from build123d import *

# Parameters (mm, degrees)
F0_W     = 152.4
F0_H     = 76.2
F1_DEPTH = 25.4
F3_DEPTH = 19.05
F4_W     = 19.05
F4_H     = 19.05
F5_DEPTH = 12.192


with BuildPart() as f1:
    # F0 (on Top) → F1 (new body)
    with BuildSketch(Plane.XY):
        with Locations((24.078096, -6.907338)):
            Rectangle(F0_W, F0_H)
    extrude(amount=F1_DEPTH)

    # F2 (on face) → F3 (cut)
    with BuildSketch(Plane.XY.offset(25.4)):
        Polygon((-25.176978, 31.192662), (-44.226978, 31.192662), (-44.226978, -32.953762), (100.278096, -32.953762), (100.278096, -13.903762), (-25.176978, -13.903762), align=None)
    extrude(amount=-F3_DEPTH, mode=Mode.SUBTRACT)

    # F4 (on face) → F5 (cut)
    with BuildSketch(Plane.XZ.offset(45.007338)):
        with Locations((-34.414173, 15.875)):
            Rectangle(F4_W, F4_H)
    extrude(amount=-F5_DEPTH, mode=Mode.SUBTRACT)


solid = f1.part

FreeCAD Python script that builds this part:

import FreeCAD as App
import Part
import Sketcher
from FreeCAD import Vector
Q = App.Units.Quantity


def add_polygon(sketch, points):
    """Adds a closed chain of lines whose ends are joined by coincident constraints."""
    first, n = sketch.GeometryCount, len(points)
    for a, b in zip(points, points[1:] + points[:1]):
        sketch.addGeometry(Part.LineSegment(App.Vector(*a, 0), App.Vector(*b, 0)), False)
    for i in range(n):
        sketch.addConstraint(Sketcher.Constraint("Coincident", first + i, 2, first + (i + 1) % n, 1))

doc = App.newDocument("Part")
body = doc.addObject("PartDesign::Body", "Body")

sketch1 = doc.addObject("Sketcher::SketchObject", "Sketch")
body.addObject(sketch1)
sketch1.AttachmentSupport = (doc.XY_Plane, [""])
sketch1.MapMode = "FlatFace"
add_polygon(sketch1, [(-52, 31), (-52, -45), (100, -45), (100, 31)])
sketch1.addConstraint([
    Sketcher.Constraint("Vertical", 0),
    Sketcher.Constraint("Horizontal", 1),
    Sketcher.Constraint("Vertical", 2),
    Sketcher.Constraint("Horizontal", 3),
    Sketcher.Constraint("DistanceX", 1, 1, 1, 2, Q("6 in")),
    Sketcher.Constraint("DistanceY", 0, 2, 0, 1, Q("3 in")),
    Sketcher.Constraint("DistanceY", -1, 1, 2, 2, Q("31.192662 mm")),
    Sketcher.Constraint("DistanceX", 0, 2, -1, 1, Q("52.121904 mm")),
])
pad1 = doc.addObject("PartDesign::Pad", "Pad")
body.addObject(pad1)
pad1.Profile = sketch1
pad1.Length = Q("1 in")

sketch2 = doc.addObject("Sketcher::SketchObject", "Sketch001")
body.addObject(sketch2)
sketch2.AttachmentSupport = (doc.XY_Plane, [""])
sketch2.MapMode = "FlatFace"
sketch2.AttachmentOffset = App.Placement(Vector(0, 0, 1 * 25.4), App.Rotation())
add_polygon(sketch2, [(-25, 31), (-44, 31), (-44, -33), (100, -33), (100, -14), (-25, -14)])
sketch2.addConstraint([
    Sketcher.Constraint("Horizontal", 0),
    Sketcher.Constraint("Vertical", 1),
    Sketcher.Constraint("Horizontal", 2),
    Sketcher.Constraint("Vertical", 3),
    Sketcher.Constraint("Horizontal", 4),
    Sketcher.Constraint("Vertical", 5),
    Sketcher.Constraint("Equal", 0, 3),
    Sketcher.Constraint("DistanceX", 0, 2, 0, 1, Q("0.75 in")),
    Sketcher.Constraint("DistanceX", 2, 1, 2, 2, Q("144.505074 mm")),
    Sketcher.Constraint("DistanceY", 1, 2, 1, 1, Q("64.146424 mm")),
    Sketcher.Constraint("DistanceX", 0, 2, -1, 1, Q("44.226978 mm")),
    Sketcher.Constraint("DistanceY", -1, 1, 0, 2, Q("31.192662 mm")),
])
pocket1 = doc.addObject("PartDesign::Pocket", "Pocket")
body.addObject(pocket1)
pocket1.Profile = sketch2
pocket1.Length = Q("0.75 in")

sketch3 = doc.addObject("Sketcher::SketchObject", "Sketch002")
body.addObject(sketch3)
sketch3.AttachmentSupport = (doc.XZ_Plane, [""])
sketch3.MapMode = "FlatFace"
sketch3.AttachmentOffset = App.Placement(Vector(0, 0, 45.007338), App.Rotation())
add_polygon(sketch3, [(-44, 25), (-44, 6), (-25, 6), (-25, 25)])
sketch3.addConstraint([
    Sketcher.Constraint("Vertical", 0),
    Sketcher.Constraint("Horizontal", 1),
    Sketcher.Constraint("Vertical", 2),
    Sketcher.Constraint("Horizontal", 3),
    Sketcher.Constraint("Equal", 3, 0),
    Sketcher.Constraint("DistanceY", -1, 1, 2, 2, Q("1 in")),
    Sketcher.Constraint("DistanceX", 1, 1, 1, 2, Q("0.75 in")),
    Sketcher.Constraint("DistanceX", 0, 2, -1, 1, Q("43.939173 mm")),
])
pocket2 = doc.addObject("PartDesign::Pocket", "Pocket001")
body.addObject(pocket2)
pocket2.Profile = sketch3
pocket2.Length = Q("0.48 in")

doc.recompute()
